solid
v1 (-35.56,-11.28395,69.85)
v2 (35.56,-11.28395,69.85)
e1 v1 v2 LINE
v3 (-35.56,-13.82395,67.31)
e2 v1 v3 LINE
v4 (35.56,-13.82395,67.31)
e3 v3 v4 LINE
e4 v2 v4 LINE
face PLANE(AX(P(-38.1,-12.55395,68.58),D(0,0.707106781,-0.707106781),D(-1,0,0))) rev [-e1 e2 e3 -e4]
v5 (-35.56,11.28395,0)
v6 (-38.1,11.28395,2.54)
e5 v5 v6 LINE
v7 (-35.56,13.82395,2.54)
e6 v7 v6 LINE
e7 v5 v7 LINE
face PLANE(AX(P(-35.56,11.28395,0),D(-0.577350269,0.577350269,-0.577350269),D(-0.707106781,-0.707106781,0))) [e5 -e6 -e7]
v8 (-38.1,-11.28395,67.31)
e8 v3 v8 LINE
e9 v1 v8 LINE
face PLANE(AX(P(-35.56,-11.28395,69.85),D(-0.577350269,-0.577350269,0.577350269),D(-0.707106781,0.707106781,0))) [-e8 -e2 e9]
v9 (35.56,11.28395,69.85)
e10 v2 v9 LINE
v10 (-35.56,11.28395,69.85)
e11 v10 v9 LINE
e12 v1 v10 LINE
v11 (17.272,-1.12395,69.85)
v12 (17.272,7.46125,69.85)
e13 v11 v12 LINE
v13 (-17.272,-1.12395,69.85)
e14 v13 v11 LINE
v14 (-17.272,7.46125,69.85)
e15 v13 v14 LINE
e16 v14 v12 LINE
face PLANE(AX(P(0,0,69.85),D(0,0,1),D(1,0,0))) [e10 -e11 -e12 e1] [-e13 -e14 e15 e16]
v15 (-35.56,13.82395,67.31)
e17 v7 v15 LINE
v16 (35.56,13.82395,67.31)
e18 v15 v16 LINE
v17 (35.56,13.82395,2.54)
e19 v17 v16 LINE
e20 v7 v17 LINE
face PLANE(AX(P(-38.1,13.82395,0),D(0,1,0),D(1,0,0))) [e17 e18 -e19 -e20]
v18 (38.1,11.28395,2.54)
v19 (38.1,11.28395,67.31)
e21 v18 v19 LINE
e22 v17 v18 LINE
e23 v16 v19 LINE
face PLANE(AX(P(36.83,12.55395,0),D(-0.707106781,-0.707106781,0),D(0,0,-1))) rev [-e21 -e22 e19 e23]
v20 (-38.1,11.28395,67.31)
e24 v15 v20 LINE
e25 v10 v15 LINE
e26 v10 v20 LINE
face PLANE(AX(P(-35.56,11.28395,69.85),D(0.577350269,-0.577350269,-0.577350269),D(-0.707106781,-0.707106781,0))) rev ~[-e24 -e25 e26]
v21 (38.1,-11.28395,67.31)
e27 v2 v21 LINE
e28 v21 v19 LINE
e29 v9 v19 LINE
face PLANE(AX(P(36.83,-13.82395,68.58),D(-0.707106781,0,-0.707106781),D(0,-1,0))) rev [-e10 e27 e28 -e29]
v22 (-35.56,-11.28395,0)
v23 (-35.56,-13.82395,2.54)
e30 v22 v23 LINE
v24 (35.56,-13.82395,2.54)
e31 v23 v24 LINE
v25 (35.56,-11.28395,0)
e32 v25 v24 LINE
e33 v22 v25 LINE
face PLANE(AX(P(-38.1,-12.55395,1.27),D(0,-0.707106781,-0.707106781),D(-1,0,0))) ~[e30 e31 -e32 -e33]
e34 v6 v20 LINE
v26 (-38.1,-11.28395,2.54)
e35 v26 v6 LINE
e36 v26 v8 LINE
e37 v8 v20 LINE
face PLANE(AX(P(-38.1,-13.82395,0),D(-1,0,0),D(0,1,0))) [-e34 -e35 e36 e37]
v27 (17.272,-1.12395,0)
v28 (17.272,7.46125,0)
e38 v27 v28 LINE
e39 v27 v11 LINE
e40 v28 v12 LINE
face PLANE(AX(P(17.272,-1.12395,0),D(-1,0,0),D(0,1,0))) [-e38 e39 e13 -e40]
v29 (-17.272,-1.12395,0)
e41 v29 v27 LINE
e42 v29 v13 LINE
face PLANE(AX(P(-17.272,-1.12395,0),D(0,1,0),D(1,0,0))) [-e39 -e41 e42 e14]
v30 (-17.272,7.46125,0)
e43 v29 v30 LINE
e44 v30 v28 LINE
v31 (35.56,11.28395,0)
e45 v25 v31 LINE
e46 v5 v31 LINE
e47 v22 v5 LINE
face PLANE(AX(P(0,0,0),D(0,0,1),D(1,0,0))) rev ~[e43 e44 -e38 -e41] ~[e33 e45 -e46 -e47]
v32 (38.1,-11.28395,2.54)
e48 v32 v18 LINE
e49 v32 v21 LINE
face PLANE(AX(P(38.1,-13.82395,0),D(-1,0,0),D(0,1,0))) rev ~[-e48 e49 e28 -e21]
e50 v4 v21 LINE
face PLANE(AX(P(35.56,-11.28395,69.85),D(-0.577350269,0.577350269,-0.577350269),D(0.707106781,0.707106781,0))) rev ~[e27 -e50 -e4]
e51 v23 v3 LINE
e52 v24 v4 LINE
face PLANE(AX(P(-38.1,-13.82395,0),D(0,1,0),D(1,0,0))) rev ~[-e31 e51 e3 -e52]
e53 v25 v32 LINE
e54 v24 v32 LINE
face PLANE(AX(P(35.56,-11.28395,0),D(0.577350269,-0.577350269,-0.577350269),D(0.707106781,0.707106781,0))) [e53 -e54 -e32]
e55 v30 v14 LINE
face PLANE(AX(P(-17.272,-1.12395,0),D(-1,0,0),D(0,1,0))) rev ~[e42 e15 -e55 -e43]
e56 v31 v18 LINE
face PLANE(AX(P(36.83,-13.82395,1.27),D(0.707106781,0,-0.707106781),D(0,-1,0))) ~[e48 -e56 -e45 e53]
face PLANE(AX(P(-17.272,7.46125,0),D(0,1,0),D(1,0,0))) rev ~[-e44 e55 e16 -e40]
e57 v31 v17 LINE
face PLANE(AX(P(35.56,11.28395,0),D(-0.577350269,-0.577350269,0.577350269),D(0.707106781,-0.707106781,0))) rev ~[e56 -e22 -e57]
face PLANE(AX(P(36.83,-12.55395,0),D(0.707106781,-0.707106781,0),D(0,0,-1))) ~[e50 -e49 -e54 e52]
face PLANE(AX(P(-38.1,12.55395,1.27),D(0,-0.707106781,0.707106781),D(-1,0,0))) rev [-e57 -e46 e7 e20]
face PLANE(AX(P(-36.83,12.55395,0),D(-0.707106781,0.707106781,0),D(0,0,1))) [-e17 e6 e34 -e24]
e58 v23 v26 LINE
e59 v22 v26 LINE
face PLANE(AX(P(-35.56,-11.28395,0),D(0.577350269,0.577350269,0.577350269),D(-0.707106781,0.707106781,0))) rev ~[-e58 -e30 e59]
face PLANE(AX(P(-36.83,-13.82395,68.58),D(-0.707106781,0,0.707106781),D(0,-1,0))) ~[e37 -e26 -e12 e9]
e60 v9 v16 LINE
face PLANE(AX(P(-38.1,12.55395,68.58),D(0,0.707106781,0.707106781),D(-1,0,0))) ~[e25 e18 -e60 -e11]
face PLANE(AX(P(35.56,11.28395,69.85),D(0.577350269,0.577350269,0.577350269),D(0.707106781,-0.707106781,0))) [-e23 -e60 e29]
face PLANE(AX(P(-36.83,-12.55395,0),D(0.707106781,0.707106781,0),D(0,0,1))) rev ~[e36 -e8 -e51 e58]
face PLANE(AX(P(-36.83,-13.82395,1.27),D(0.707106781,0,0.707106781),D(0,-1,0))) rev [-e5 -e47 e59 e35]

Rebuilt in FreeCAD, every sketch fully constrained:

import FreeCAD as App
import Part
import Sketcher
from FreeCAD import Vector
Q = App.Units.Quantity


def edges_at(feature, points):
    """Names of the edges that pass closest to the given points."""
    edges = feature.Shape.Edges
    near = lambda p: min(range(len(edges)), key=lambda i: edges[i].distToShape(Part.Vertex(*p))[0])
    return sorted({f"Edge{near(p) + 1}" for p in points})

doc = App.newDocument("Part")
body = doc.addObject("PartDesign::Body", "Body")

sketch1 = body.newObject("Sketcher::SketchObject", "Sketch")
sketch1.AttachmentSupport = (doc.getObject("XY_Plane"), [""])
sketch1.MapMode = "FlatFace"
sketch1.addGeometry([
    Part.LineSegment(Vector(-38, 14, 0), Vector(-38, -14, 0)),
    Part.LineSegment(Vector(-38, -14, 0), Vector(38, -14, 0)),
    Part.LineSegment(Vector(38, -14, 0), Vector(38, 14, 0)),
    Part.LineSegment(Vector(38, 14, 0), Vector(-38, 14, 0)),
    Part.LineSegment(Vector(17, -1, 0), Vector(-17, -1, 0)),
    Part.LineSegment(Vector(-17, -1, 0), Vector(-17, 7, 0)),
    Part.LineSegment(Vector(-17, 7, 0), Vector(17, 7, 0)),
    Part.LineSegment(Vector(17, 7, 0), Vector(17, -1, 0)),
], False)
sketch1.addConstraint([
    Sketcher.Constraint("Coincident", 0, 2, 1, 1),
    Sketcher.Constraint("Coincident", 1, 2, 2, 1),
    Sketcher.Constraint("Coincident", 2, 2, 3, 1),
    Sketcher.Constraint("Coincident", 3, 2, 0, 1),
    Sketcher.Constraint("Coincident", 4, 2, 5, 1),
    Sketcher.Constraint("Coincident", 5, 2, 6, 1),
    Sketcher.Constraint("Coincident", 6, 2, 7, 1),
    Sketcher.Constraint("Coincident", 7, 2, 4, 1),
    Sketcher.Constraint("Vertical", 0),
    Sketcher.Constraint("Horizontal", 1),
    Sketcher.Constraint("Vertical", 2),
    Sketcher.Constraint("Horizontal", 3),
    Sketcher.Constraint("Horizontal", 4),
    Sketcher.Constraint("Vertical", 5),
    Sketcher.Constraint("Horizontal", 6),
    Sketcher.Constraint("Vertical", 7),
    Sketcher.Constraint("Symmetric", 0, 2, 2, 2, -1, 1),
    Sketcher.Constraint("DistanceX", 1, 1, 1, 2, Q("3 in")),
    Sketcher.Constraint("DistanceX", 4, 2, 4, 1, Q("1.36 in")),
    Sketcher.Constraint("DistanceY", 0, 2, 4, 2, Q("0.5 in")),
    Sketcher.Constraint("DistanceY", 5, 1, 5, 2, Q("0.338 in")),
    Sketcher.Constraint("DistanceX", 4, 2, -1, 1, Q("0.68 in")),
    Sketcher.Constraint("DistanceY", 0, 2, 0, 1, Q("1.0885 in")),
])
pad1 = body.newObject("PartDesign::Pad", "Pad")
pad1.Profile = sketch1
pad1.Length = Q("2.75 in")
doc.recompute()

chamfer = body.newObject("PartDesign::Chamfer", "Chamfer")
chamfer.Base = (pad1, edges_at(pad1, [
    (38.1, -13.824, 34.925),
    (-38.1, -13.824, 34.925),
    (38.1, 13.824, 34.925),
    (-38.1, 13.824, 34.925),
    (0, 13.824, 69.85),
    (0, -13.824, 69.85),
    (0, -13.824, 0),
    (0, 13.824, 0),
    (-38.1, 0, 0),
    (38.1, 0, 0),
    (38.1, 0, 69.85),
    (-38.1, 0, 69.85),
]))
chamfer.Size = Q("0.1 in")

doc.recompute()
